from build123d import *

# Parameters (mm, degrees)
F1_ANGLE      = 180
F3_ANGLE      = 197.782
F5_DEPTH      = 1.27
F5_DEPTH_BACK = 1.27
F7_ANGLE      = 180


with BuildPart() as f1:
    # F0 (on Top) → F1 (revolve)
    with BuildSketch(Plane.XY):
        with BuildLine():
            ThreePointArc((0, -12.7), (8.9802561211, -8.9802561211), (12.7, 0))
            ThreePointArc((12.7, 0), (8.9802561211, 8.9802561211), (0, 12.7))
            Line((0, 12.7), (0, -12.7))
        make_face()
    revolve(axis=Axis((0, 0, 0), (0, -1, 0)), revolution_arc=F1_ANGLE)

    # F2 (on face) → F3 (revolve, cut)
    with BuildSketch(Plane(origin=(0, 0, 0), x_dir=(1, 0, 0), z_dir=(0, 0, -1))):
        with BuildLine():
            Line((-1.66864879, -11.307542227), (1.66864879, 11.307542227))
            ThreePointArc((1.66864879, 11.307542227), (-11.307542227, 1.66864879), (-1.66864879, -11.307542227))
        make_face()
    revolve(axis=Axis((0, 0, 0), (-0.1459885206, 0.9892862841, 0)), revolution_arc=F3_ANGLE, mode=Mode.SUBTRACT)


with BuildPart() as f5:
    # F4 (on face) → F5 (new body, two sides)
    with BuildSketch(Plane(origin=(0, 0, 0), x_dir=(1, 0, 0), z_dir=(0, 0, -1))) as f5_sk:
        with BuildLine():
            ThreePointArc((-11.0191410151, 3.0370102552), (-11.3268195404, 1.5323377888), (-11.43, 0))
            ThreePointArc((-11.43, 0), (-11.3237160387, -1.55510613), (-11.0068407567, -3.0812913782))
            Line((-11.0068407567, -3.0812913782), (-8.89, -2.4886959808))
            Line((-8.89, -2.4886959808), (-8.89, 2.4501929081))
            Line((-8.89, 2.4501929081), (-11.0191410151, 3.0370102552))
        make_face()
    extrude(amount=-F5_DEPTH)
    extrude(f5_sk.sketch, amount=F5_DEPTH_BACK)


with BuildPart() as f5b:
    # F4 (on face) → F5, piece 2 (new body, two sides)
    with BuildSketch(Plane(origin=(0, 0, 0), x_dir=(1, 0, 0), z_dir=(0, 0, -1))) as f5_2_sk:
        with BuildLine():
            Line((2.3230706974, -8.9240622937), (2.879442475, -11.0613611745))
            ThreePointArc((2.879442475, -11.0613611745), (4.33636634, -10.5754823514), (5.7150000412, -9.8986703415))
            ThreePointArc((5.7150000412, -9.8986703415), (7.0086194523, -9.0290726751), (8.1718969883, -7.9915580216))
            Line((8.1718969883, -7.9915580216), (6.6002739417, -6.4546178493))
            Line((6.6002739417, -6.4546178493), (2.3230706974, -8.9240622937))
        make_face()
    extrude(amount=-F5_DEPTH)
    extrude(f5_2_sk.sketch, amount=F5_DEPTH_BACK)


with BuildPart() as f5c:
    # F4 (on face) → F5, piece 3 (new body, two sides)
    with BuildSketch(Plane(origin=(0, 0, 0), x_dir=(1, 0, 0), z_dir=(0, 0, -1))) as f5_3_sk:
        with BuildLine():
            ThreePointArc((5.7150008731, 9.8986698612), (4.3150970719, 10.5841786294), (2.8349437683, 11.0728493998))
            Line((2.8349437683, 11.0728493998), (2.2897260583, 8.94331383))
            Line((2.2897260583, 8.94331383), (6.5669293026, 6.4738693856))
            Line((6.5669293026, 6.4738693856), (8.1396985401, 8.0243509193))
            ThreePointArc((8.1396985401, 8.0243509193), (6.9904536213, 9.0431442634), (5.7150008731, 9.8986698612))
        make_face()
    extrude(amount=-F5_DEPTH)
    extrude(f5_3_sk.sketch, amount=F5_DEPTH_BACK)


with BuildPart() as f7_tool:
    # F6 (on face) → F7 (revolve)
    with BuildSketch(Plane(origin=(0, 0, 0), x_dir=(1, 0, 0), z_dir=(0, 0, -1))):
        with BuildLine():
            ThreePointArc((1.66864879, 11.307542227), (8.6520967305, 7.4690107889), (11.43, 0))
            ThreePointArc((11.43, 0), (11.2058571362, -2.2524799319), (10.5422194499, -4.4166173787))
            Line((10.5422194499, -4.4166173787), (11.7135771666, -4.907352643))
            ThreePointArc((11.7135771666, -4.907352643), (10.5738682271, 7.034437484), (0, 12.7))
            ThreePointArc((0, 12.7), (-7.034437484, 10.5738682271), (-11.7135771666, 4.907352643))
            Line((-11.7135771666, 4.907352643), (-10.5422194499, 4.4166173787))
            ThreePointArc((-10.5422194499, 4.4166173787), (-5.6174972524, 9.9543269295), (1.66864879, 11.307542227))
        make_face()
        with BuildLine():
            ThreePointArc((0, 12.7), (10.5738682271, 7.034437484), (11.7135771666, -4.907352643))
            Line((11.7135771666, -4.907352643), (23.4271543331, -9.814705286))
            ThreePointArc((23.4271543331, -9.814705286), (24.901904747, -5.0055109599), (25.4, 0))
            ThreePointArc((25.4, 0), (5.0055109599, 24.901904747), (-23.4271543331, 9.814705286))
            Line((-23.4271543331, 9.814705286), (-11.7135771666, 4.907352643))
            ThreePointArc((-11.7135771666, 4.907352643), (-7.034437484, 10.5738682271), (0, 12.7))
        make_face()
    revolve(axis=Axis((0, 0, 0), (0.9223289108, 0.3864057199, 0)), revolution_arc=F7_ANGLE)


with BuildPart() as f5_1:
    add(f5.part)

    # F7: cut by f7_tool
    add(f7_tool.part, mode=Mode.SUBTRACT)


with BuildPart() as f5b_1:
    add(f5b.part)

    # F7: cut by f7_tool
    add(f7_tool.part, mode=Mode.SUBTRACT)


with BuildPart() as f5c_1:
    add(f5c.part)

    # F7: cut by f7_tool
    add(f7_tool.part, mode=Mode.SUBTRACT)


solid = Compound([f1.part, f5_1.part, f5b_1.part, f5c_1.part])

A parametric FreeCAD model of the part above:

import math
import FreeCAD as App
import Part
import Sketcher

V = App.Vector
Q = App.Units.Quantity

doc = App.newDocument("Part")
body = doc.addObject("PartDesign::Body", "Body")

sketch1 = doc.addObject("Sketcher::SketchObject", "Sketch")
body.addObject(sketch1)
sketch1.AttachmentSupport = (doc.XY_Plane, [""])
sketch1.MapMode = "FlatFace"
sketch1.addGeometry(Part.ArcOfCircle(Part.Circle(V(0, 0, 0), V(0, 0, 1), 13), math.radians(-90), math.radians(0)), False)
sketch1.addGeometry(Part.ArcOfCircle(Part.Circle(V(0, 0, 0), V(0, 0, 1), 13), math.radians(0), math.radians(90)), False)
sketch1.addGeometry(Part.LineSegment(V(0, 13, 0), V(0, -13, 0)), False)
sketch1.addConstraint(Sketcher.Constraint("Tangent", 0, 2, 1, 1))
sketch1.addConstraint(Sketcher.Constraint("Coincident", 1, 2, 2, 1))
sketch1.addConstraint(Sketcher.Constraint("Coincident", 2, 2, 0, 1))
sketch1.addConstraint(Sketcher.Constraint("Vertical", 2))
sketch1.addConstraint(Sketcher.Constraint("Coincident", 0, 3, -1, 1))
sketch1.addConstraint(Sketcher.Constraint("Equal", 0, 1))
sketch1.addConstraint(Sketcher.Constraint("PointOnObject", 0, 2, -1))
sketch1.addConstraint(Sketcher.Constraint("PointOnObject", 1, 2, -2))
sketch1.addConstraint(Sketcher.Constraint("Radius", 0, Q("0.5 in")))
revolution = doc.addObject("PartDesign::Revolution", "Revolution")
body.addObject(revolution)
revolution.Profile = sketch1
revolution.ReferenceAxis = (sketch1, ["V_Axis"])
revolution.Angle = 180
revolution.Reversed = True

sketch2 = doc.addObject("Sketcher::SketchObject", "Sketch001")
body.addObject(sketch2)
sketch2.AttachmentSupport = (doc.XY_Plane, [""])
sketch2.MapMode = "FlatFace"
sketch2.addGeometry(Part.LineSegment(V(-2, 11, 0), V(2, -11, 0)), False)
sketch2.addGeometry(Part.ArcOfCircle(Part.Circle(V(0, 0, 0), V(0, 0, 1), 11), math.radians(98), math.radians(278)), False)
sketch2.addGeometry(Part.LineSegment(V(2, -11, 0), V(-2, 11, 0)), True)
sketch2.addConstraint(Sketcher.Constraint("Coincident", 0, 1, 1, 1))
sketch2.addConstraint(Sketcher.Constraint("Coincident", 1, 2, 0, 2))
sketch2.addConstraint(Sketcher.Constraint("Coincident", 1, 3, -1, 1))
sketch2.addConstraint(Sketcher.Constraint("Coincident", 2, 1, 1, 2))
sketch2.addConstraint(Sketcher.Constraint("Coincident", 2, 2, 0, 1))
sketch2.addConstraint(Sketcher.Constraint("Radius", 1, Q("0.45 in")))
sketch2.addConstraint(Sketcher.Constraint("DistanceX", 0, 1, -1, 1, Q("1.668649 mm")))
sketch2.addConstraint(Sketcher.Constraint("DistanceX", -1, 1, 1, 2, Q("1.668649 mm")))
groove = doc.addObject("PartDesign::Groove", "Groove")
body.addObject(groove)
groove.Profile = sketch2
groove.ReferenceAxis = (sketch2, ["Axis0"])
groove.Angle = 197.782
body2 = doc.addObject("PartDesign::Body", "Body001")

sketch3 = doc.addObject("Sketcher::SketchObject", "Sketch002")
body2.addObject(sketch3)
sketch3.AttachmentSupport = (doc.getObject("XY_Plane001"), [""])
sketch3.MapMode = "FlatFace"
sketch3.addGeometry(Part.ArcOfCircle(Part.Circle(V(0, 0, 0), V(0, 0, 1), 11.4), math.radians(180), math.radians(195.41)), False)
sketch3.addGeometry(Part.ArcOfCircle(Part.Circle(V(0, 0, 0), V(0, 0, 1), 11.4), math.radians(164.36), math.radians(180)), False)
sketch3.addGeometry(Part.LineSegment(V(-11, 3.1, 0), V(-8.9, 2.5, 0)), False)
sketch3.addGeometry(Part.LineSegment(V(-8.9, 2.5, 0), V(-8.9, -2.5, 0)), False)
sketch3.addGeometry(Part.LineSegment(V(-8.9, -2.5, 0), V(-11, -3, 0)), False)
sketch3.addConstraint(Sketcher.Constraint("Tangent", 0, 1, 1, 2))
sketch3.addConstraint(Sketcher.Constraint("Coincident", 1, 1, 2, 1))
sketch3.addConstraint(Sketcher.Constraint("Coincident", 2, 2, 3, 1))
sketch3.addConstraint(Sketcher.Constraint("Coincident", 3, 2, 4, 1))
sketch3.addConstraint(Sketcher.Constraint("Coincident", 4, 2, 0, 2))
sketch3.addConstraint(Sketcher.Constraint("Vertical", 3))
sketch3.addConstraint(Sketcher.Constraint("Coincident", 0, 3, -1, 1))
sketch3.addConstraint(Sketcher.Constraint("Equal", 0, 1))
sketch3.addConstraint(Sketcher.Constraint("PointOnObject", 0, 1, -1))
sketch3.addConstraint(Sketcher.Constraint("Radius", 0, Q("0.45 in")))
sketch3.addConstraint(Sketcher.Constraint("DistanceX", 0, 1, 2, 2, Q("0.1 in")))
sketch3.addConstraint(Sketcher.Constraint("DistanceY", 3, 2, 3, 1, Q("4.938889 mm")))
sketch3.addConstraint(Sketcher.Constraint("DistanceX", 4, 2, 1, 1, Q("0.0123 mm")))
sketch3.addConstraint(Sketcher.Constraint("DistanceY", 4, 2, 1, 1, Q("6.118302 mm")))
sketch3.addConstraint(Sketcher.Constraint("Distance", 4, Q("2.208528 mm")))
pad1 = doc.addObject("PartDesign::Pad", "Pad")
body2.addObject(pad1)
pad1.Profile = sketch3
pad1.Type = "TwoLengths"
pad1.Length = Q("0.05 in")
pad1.Length2 = Q("0.05 in")
body3 = doc.addObject("PartDesign::Body", "Body002")

sketch4 = doc.addObject("Sketcher::SketchObject", "Sketch003")
body3.addObject(sketch4)
sketch4.AttachmentSupport = (doc.getObject("XY_Plane002"), [""])
sketch4.MapMode = "FlatFace"
sketch4.addGeometry(Part.LineSegment(V(2.3, 8.9, 0), V(2.9, 11.1, 0)), False)
sketch4.addGeometry(Part.ArcOfCircle(Part.Circle(V(0, 0, 0), V(0, 0, 1), 11.4), math.radians(60), math.radians(75.41)), False)
sketch4.addGeometry(Part.ArcOfCircle(Part.Circle(V(0, 0, 0), V(0, 0, 1), 11.4), math.radians(44.36), math.radians(60)), False)
sketch4.addGeometry(Part.LineSegment(V(8.2, 8, 0), V(6.6, 6.5, 0)), False)
sketch4.addGeometry(Part.LineSegment(V(6.6, 6.5, 0), V(2.3, 8.9, 0)), False)
sketch4.addConstraint(Sketcher.Constraint("Coincident", 0, 2, 1, 2))
sketch4.addConstraint(Sketcher.Constraint("Tangent", 1, 1, 2, 2))
sketch4.addConstraint(Sketcher.Constraint("Coincident", 2, 1, 3, 1))
sketch4.addConstraint(Sketcher.Constraint("Coincident", 3, 2, 4, 1))
sketch4.addConstraint(Sketcher.Constraint("Coincident", 4, 2, 0, 1))
sketch4.addConstraint(Sketcher.Constraint("Coincident", 1, 3, -1, 1))
sketch4.addConstraint(Sketcher.Constraint("Equal", 1, 2))
sketch4.addConstraint(Sketcher.Constraint("Radius", 1, Q("0.45 in")))
sketch4.addConstraint(Sketcher.Constraint("Angle", 4, Q("150 deg")))
sketch4.addConstraint(Sketcher.Constraint("DistanceX", -1, 1, 1, 1, Q("0.225 in")))
sketch4.addConstraint(Sketcher.Constraint("DistanceY", 4, 2, 0, 2, Q("2.137299 mm")))
sketch4.addConstraint(Sketcher.Constraint("Distance", 0, Q("2.208528 mm")))
sketch4.addConstraint(Sketcher.Constraint("Distance", 4, Q("4.938889 mm")))
sketch4.addConstraint(Sketcher.Constraint("DistanceY", -1, 1, 0, 2, Q("11.061361 mm")))
sketch4.addConstraint(Sketcher.Constraint("DistanceY", -1, 1, 2, 1, Q("7.991558 mm")))
pad2 = doc.addObject("PartDesign::Pad", "Pad001")
body3.addObject(pad2)
pad2.Profile = sketch4
pad2.Type = "TwoLengths"
pad2.Length = Q("0.05 in")
pad2.Length2 = Q("0.05 in")
body4 = doc.addObject("PartDesign::Body", "Body003")

sketch5 = doc.addObject("Sketcher::SketchObject", "Sketch004")
body4.addObject(sketch5)
sketch5.AttachmentSupport = (doc.getObject("XY_Plane003"), [""])
sketch5.MapMode = "FlatFace"
sketch5.addGeometry(Part.ArcOfCircle(Part.Circle(V(0, 0, 0), V(0, 0, 1), 11.4), math.radians(-75.64), math.radians(-60)), False)
sketch5.addGeometry(Part.LineSegment(V(2.8, -11.1, 0), V(2.3, -8.9, 0)), False)
sketch5.addGeometry(Part.LineSegment(V(2.3, -8.9, 0), V(6.6, -6.5, 0)), False)
sketch5.addGeometry(Part.LineSegment(V(6.6, -6.5, 0), V(8.1, -8, 0)), False)
sketch5.addGeometry(Part.ArcOfCircle(Part.Circle(V(0, 0, 0), V(0, 0, 1), 11.4), math.radians(-60), math.radians(-44.59)), False)
sketch5.addConstraint(Sketcher.Constraint("Coincident", 0, 1, 1, 1))
sketch5.addConstraint(Sketcher.Constraint("Coincident", 1, 2, 2, 1))
sketch5.addConstraint(Sketcher.Constraint("Coincident", 2, 2, 3, 1))
sketch5.addConstraint(Sketcher.Constraint("Coincident", 3, 2, 4, 2))
sketch5.addConstraint(Sketcher.Constraint("Tangent", 4, 1, 0, 2))
sketch5.addConstraint(Sketcher.Constraint("Coincident", 0, 3, -1, 1))
sketch5.addConstraint(Sketcher.Constraint("Equal", 0, 4))
sketch5.addConstraint(Sketcher.Constraint("Radius", 0, Q("0.45 in")))
sketch5.addConstraint(Sketcher.Constraint("Angle", 2, Q("30 deg")))
sketch5.addConstraint(Sketcher.Constraint("DistanceX", -1, 1, 4, 1, Q("0.225 in")))
sketch5.addConstraint(Sketcher.Constraint("DistanceX", -1, 1, 3, 2, Q("8.139699 mm")))
sketch5.addConstraint(Sketcher.Constraint("DistanceY", 0, 1, 3, 2, Q("3.048498 mm")))
sketch5.addConstraint(Sketcher.Constraint("DistanceY", 4, 1, 2, 2, Q("3.4248 mm")))
sketch5.addConstraint(Sketcher.Constraint("Distance", 2, Q("4.938889 mm")))
sketch5.addConstraint(Sketcher.Constraint("Distance", 3, Q("2.208528 mm")))
pad3 = doc.addObject("PartDesign::Pad", "Pad002")
body4.addObject(pad3)
pad3.Profile = sketch5
pad3.Type = "TwoLengths"
pad3.Length = Q("0.05 in")
pad3.Length2 = Q("0.05 in")
body5 = doc.addObject("PartDesign::Body", "Body004")

sketch6 = doc.addObject("Sketcher::SketchObject", "Sketch005")
body5.addObject(sketch6)
sketch6.AttachmentSupport = (doc.getObject("XY_Plane004"), [""])
sketch6.MapMode = "FlatFace"
sketch6.addGeometry(Part.ArcOfCircle(Part.Circle(V(0, 0, 0), V(0, 0, 1), 11.4), math.radians(-82), math.radians(0)), False)
sketch6.addGeometry(Part.ArcOfCircle(Part.Circle(V(0, 0, 0), V(0, 0, 1), 11.4), math.radians(0), math.radians(23)), False)
sketch6.addGeometry(Part.LineSegment(V(10.5, 4.4, 0), V(11.7, 4.9, 0)), False)
sketch6.addGeometry(Part.LineSegment(V(11.7, 4.9, 0), V(23.4, 9.8, 0)), False)
sketch6.addGeometry(Part.ArcOfCircle(Part.Circle(V(0, 0, 0), V(0, 0, 1), 25.4), math.radians(0), math.radians(23)), False)
sketch6.addGeometry(Part.ArcOfCircle(Part.Circle(V(0, 0, 0), V(0, 0, 1), 25.4), math.radians(-157), math.radians(0)), False)
sketch6.addGeometry(Part.LineSegment(V(-23.4, -9.8, 0), V(-11.7, -4.9, 0)), False)
sketch6.addGeometry(Part.LineSegment(V(-11.7, -4.9, 0), V(-10.5, -4.4, 0)), False)
sketch6.addGeometry(Part.ArcOfCircle(Part.Circle(V(0, 0, 0), V(0, 0, 1), 11.4), math.radians(-157), math.radians(-82)), False)
sketch6.addGeometry(Part.LineSegment(V(-23.4, -9.8, 0), V(23.4, 9.8, 0)), True)
sketch6.addConstraint(Sketcher.Constraint("Tangent", 0, 2, 1, 1))
sketch6.addConstraint(Sketcher.Constraint("Coincident", 1, 2, 2, 1))
sketch6.addConstraint(Sketcher.Constraint("Coincident", 2, 2, 3, 1))
sketch6.addConstraint(Sketcher.Constraint("Coincident", 3, 2, 4, 2))
sketch6.addConstraint(Sketcher.Constraint("Tangent", 4, 1, 5, 2))
sketch6.addConstraint(Sketcher.Constraint("Coincident", 5, 1, 6, 1))
sketch6.addConstraint(Sketcher.Constraint("Coincident", 6, 2, 7, 1))
sketch6.addConstraint(Sketcher.Constraint("Coincident", 7, 2, 8, 1))
sketch6.addConstraint(Sketcher.Constraint("Tangent", 8, 2, 0, 1))
sketch6.addConstraint(Sketcher.Constraint("Coincident", 0, 3, -1, 1))
sketch6.addConstraint(Sketcher.Constraint("Coincident", 4, 3, -1, 1))
sketch6.addConstraint(Sketcher.Constraint("Coincident", 9, 1, 5, 1))
sketch6.addConstraint(Sketcher.Constraint("Coincident", 9, 2, 3, 2))
sketch6.addConstraint(Sketcher.Constraint("Equal", 0, 1))
sketch6.addConstraint(Sketcher.Constraint("Equal", 4, 5))
sketch6.addConstraint(Sketcher.Constraint("Equal", 1, 8))
sketch6.addConstraint(Sketcher.Constraint("Symmetric", 2, 2, 6, 2, -1, 1))
sketch6.addConstraint(Sketcher.Constraint("PointOnObject", 0, 2, -1))
sketch6.addConstraint(Sketcher.Constraint("PointOnObject", 4, 1, -1))
sketch6.addConstraint(Sketcher.Constraint("Parallel", 2, 3))
sketch6.addConstraint(Sketcher.Constraint("Parallel", 3, 6))
sketch6.addConstraint(Sketcher.Constraint("Parallel", 6, 7))
sketch6.addConstraint(Sketcher.Constraint("Parallel", 7, 9))
sketch6.addConstraint(Sketcher.Constraint("Radius", 4, Q("1 in")))
sketch6.addConstraint(Sketcher.Constraint("Radius", 0, Q("0.45 in")))
sketch6.addConstraint(Sketcher.Constraint("Distance", 3, Q("0.5 in")))
sketch6.addConstraint(Sketcher.Constraint("DistanceX", -1, 1, 1, 2, Q("10.542219 mm")))
sketch6.addConstraint(Sketcher.Constraint("DistanceX", -1, 1, 8, 2, Q("1.668649 mm")))
revolution2 = doc.addObject("PartDesign::Revolution", "Revolution001")
body5.addObject(revolution2)
revolution2.Profile = sketch6
revolution2.ReferenceAxis = (sketch6, ["Axis0"])
revolution2.Angle = 180
doc.recompute()

body6 = doc.addObject("PartDesign::Body", "Body005")
body6.BaseFeature = body5
boolean = doc.addObject("PartDesign::Boolean", "Boolean")
body2.addObject(boolean)
boolean.Type = "Cut"
boolean.addObjects([body6])
doc.recompute()

body7 = doc.addObject("PartDesign::Body", "Body006")
body7.BaseFeature = body5
boolean2 = doc.addObject("PartDesign::Boolean", "Boolean001")
body3.addObject(boolean2)
boolean2.Type = "Cut"
boolean2.addObjects([body7])
doc.recompute()

boolean3 = doc.addObject("PartDesign::Boolean", "Boolean002")
body4.addObject(boolean3)
boolean3.Type = "Cut"
boolean3.addObjects([body5])

doc.recompute()
